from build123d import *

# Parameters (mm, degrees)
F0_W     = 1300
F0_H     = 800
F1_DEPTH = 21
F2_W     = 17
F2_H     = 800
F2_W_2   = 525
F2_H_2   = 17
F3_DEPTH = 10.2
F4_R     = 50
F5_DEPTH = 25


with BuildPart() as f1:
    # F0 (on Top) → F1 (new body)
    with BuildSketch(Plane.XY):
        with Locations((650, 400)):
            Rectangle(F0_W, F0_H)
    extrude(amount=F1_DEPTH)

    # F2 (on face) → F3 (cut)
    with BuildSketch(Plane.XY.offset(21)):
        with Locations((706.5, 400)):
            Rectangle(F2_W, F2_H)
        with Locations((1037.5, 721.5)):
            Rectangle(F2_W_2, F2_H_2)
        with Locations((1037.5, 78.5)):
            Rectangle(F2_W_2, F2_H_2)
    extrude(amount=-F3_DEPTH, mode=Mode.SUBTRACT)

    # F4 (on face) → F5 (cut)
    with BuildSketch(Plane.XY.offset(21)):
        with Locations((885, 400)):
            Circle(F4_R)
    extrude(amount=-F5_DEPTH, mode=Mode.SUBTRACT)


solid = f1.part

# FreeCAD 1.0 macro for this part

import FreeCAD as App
import Part
import Sketcher

V = App.Vector


def add_polygon(sketch, points):
    """Adds a closed chain of lines whose ends are joined by coincident constraints."""
    first, n = sketch.GeometryCount, len(points)
    for a, b in zip(points, points[1:] + points[:1]):
        sketch.addGeometry(Part.LineSegment(App.Vector(*a, 0), App.Vector(*b, 0)), False)
    for i in range(n):
        sketch.addConstraint(Sketcher.Constraint("Coincident", first + i, 2, first + (i + 1) % n, 1))

doc = App.newDocument("Part")
body = doc.addObject("PartDesign::Body", "Body")

# Sketch on XY plane
sketch1 = doc.addObject("Sketcher::SketchObject", "Sketch")
body.addObject(sketch1)
sketch1.AttachmentSupport = (doc.XY_Plane, [""])
sketch1.MapMode = "FlatFace"
add_polygon(sketch1, [(0, 800), (0, 0), (1300, 0), (1300, 800)])  # lines 0-3
sketch1.addConstraint([
    Sketcher.Constraint("Vertical", 0),
    Sketcher.Constraint("Horizontal", 1),
    Sketcher.Constraint("Vertical", 2),
    Sketcher.Constraint("Horizontal", 3),
    Sketcher.Constraint("Coincident", 0, 2, -1, 1),
    Sketcher.Constraint("DistanceX", 1, 1, 1, 2, 1300.0),
    Sketcher.Constraint("DistanceY", 0, 2, 0, 1, 800.0),
])
pad1 = doc.addObject("PartDesign::Pad", "Pad")
body.addObject(pad1)
pad1.Profile = sketch1
pad1.Length = 21

# Sketch on XY plane
sketch2 = doc.addObject("Sketcher::SketchObject", "Sketch001")
body.addObject(sketch2)
sketch2.AttachmentSupport = (doc.XY_Plane, [""])
sketch2.MapMode = "FlatFace"
sketch2.AttachmentOffset = App.Placement(V(0, 0, 21), App.Rotation())
add_polygon(sketch2, [(698, 800), (698, 0), (715, 0), (715, 800)])  # lines 0-3
add_polygon(sketch2, [(775, 730), (775, 713), (1300, 713), (1300, 730)])  # lines 4-7
add_polygon(sketch2, [(775, 87), (775, 70), (1300, 70), (1300, 87)])  # lines 8-11
sketch2.addConstraint([
    Sketcher.Constraint("Vertical", 0),
    Sketcher.Constraint("Horizontal", 1),
    Sketcher.Constraint("Vertical", 2),
    Sketcher.Constraint("Horizontal", 3),
    Sketcher.Constraint("Vertical", 4),
    Sketcher.Constraint("Horizontal", 5),
    Sketcher.Constraint("Vertical", 6),
    Sketcher.Constraint("Horizontal", 7),
    Sketcher.Constraint("Vertical", 8),
    Sketcher.Constraint("Horizontal", 9),
    Sketcher.Constraint("Vertical", 10),
    Sketcher.Constraint("Horizontal", 11),
    Sketcher.Constraint("PointOnObject", 0, 2, -1),
    Sketcher.Constraint("Vertical", 7, 2, 8, 2),
    Sketcher.Constraint("Vertical", 6, 2, 9, 2),
    Sketcher.Constraint("Equal", 3, 4),
    Sketcher.Constraint("Equal", 6, 8),
    Sketcher.Constraint("DistanceX", 1, 1, 1, 2, 17.0),
    Sketcher.Constraint("DistanceX", 5, 1, 5, 2, 525.0),
    Sketcher.Constraint("DistanceY", 0, 2, 0, 1, 800.0),
    Sketcher.Constraint("DistanceX", -1, 1, 0, 2, 698.0),
    Sketcher.Constraint("DistanceX", -1, 1, 4, 2, 775.0),
    Sketcher.Constraint("DistanceY", -1, 1, 4, 2, 713.0),
    Sketcher.Constraint("DistanceY", -1, 1, 8, 2, 70.0),
])
pocket1 = doc.addObject("PartDesign::Pocket", "Pocket")
body.addObject(pocket1)
pocket1.Profile = sketch2
pocket1.Length = 10.2

# Sketch on XY plane
sketch3 = doc.addObject("Sketcher::SketchObject", "Sketch002")
body.addObject(sketch3)
sketch3.AttachmentSupport = (doc.XY_Plane, [""])
sketch3.MapMode = "FlatFace"
sketch3.AttachmentOffset = App.Placement(V(0, 0, 21), App.Rotation())
sketch3.addGeometry(Part.Circle(V(885, 400, 0), V(0, 0, 1), 50), False)
sketch3.addConstraint([
    Sketcher.Constraint("Diameter", 0, 100.0),
    Sketcher.Constraint("DistanceX", -1, 1, 0, 3, 885.0),
    Sketcher.Constraint("DistanceY", -1, 1, 0, 3, 400.0),
])
pocket2 = doc.addObject("PartDesign::Pocket", "Pocket001")
body.addObject(pocket2)
pocket2.Profile = sketch3
pocket2.Length = 25

doc.recompute()
